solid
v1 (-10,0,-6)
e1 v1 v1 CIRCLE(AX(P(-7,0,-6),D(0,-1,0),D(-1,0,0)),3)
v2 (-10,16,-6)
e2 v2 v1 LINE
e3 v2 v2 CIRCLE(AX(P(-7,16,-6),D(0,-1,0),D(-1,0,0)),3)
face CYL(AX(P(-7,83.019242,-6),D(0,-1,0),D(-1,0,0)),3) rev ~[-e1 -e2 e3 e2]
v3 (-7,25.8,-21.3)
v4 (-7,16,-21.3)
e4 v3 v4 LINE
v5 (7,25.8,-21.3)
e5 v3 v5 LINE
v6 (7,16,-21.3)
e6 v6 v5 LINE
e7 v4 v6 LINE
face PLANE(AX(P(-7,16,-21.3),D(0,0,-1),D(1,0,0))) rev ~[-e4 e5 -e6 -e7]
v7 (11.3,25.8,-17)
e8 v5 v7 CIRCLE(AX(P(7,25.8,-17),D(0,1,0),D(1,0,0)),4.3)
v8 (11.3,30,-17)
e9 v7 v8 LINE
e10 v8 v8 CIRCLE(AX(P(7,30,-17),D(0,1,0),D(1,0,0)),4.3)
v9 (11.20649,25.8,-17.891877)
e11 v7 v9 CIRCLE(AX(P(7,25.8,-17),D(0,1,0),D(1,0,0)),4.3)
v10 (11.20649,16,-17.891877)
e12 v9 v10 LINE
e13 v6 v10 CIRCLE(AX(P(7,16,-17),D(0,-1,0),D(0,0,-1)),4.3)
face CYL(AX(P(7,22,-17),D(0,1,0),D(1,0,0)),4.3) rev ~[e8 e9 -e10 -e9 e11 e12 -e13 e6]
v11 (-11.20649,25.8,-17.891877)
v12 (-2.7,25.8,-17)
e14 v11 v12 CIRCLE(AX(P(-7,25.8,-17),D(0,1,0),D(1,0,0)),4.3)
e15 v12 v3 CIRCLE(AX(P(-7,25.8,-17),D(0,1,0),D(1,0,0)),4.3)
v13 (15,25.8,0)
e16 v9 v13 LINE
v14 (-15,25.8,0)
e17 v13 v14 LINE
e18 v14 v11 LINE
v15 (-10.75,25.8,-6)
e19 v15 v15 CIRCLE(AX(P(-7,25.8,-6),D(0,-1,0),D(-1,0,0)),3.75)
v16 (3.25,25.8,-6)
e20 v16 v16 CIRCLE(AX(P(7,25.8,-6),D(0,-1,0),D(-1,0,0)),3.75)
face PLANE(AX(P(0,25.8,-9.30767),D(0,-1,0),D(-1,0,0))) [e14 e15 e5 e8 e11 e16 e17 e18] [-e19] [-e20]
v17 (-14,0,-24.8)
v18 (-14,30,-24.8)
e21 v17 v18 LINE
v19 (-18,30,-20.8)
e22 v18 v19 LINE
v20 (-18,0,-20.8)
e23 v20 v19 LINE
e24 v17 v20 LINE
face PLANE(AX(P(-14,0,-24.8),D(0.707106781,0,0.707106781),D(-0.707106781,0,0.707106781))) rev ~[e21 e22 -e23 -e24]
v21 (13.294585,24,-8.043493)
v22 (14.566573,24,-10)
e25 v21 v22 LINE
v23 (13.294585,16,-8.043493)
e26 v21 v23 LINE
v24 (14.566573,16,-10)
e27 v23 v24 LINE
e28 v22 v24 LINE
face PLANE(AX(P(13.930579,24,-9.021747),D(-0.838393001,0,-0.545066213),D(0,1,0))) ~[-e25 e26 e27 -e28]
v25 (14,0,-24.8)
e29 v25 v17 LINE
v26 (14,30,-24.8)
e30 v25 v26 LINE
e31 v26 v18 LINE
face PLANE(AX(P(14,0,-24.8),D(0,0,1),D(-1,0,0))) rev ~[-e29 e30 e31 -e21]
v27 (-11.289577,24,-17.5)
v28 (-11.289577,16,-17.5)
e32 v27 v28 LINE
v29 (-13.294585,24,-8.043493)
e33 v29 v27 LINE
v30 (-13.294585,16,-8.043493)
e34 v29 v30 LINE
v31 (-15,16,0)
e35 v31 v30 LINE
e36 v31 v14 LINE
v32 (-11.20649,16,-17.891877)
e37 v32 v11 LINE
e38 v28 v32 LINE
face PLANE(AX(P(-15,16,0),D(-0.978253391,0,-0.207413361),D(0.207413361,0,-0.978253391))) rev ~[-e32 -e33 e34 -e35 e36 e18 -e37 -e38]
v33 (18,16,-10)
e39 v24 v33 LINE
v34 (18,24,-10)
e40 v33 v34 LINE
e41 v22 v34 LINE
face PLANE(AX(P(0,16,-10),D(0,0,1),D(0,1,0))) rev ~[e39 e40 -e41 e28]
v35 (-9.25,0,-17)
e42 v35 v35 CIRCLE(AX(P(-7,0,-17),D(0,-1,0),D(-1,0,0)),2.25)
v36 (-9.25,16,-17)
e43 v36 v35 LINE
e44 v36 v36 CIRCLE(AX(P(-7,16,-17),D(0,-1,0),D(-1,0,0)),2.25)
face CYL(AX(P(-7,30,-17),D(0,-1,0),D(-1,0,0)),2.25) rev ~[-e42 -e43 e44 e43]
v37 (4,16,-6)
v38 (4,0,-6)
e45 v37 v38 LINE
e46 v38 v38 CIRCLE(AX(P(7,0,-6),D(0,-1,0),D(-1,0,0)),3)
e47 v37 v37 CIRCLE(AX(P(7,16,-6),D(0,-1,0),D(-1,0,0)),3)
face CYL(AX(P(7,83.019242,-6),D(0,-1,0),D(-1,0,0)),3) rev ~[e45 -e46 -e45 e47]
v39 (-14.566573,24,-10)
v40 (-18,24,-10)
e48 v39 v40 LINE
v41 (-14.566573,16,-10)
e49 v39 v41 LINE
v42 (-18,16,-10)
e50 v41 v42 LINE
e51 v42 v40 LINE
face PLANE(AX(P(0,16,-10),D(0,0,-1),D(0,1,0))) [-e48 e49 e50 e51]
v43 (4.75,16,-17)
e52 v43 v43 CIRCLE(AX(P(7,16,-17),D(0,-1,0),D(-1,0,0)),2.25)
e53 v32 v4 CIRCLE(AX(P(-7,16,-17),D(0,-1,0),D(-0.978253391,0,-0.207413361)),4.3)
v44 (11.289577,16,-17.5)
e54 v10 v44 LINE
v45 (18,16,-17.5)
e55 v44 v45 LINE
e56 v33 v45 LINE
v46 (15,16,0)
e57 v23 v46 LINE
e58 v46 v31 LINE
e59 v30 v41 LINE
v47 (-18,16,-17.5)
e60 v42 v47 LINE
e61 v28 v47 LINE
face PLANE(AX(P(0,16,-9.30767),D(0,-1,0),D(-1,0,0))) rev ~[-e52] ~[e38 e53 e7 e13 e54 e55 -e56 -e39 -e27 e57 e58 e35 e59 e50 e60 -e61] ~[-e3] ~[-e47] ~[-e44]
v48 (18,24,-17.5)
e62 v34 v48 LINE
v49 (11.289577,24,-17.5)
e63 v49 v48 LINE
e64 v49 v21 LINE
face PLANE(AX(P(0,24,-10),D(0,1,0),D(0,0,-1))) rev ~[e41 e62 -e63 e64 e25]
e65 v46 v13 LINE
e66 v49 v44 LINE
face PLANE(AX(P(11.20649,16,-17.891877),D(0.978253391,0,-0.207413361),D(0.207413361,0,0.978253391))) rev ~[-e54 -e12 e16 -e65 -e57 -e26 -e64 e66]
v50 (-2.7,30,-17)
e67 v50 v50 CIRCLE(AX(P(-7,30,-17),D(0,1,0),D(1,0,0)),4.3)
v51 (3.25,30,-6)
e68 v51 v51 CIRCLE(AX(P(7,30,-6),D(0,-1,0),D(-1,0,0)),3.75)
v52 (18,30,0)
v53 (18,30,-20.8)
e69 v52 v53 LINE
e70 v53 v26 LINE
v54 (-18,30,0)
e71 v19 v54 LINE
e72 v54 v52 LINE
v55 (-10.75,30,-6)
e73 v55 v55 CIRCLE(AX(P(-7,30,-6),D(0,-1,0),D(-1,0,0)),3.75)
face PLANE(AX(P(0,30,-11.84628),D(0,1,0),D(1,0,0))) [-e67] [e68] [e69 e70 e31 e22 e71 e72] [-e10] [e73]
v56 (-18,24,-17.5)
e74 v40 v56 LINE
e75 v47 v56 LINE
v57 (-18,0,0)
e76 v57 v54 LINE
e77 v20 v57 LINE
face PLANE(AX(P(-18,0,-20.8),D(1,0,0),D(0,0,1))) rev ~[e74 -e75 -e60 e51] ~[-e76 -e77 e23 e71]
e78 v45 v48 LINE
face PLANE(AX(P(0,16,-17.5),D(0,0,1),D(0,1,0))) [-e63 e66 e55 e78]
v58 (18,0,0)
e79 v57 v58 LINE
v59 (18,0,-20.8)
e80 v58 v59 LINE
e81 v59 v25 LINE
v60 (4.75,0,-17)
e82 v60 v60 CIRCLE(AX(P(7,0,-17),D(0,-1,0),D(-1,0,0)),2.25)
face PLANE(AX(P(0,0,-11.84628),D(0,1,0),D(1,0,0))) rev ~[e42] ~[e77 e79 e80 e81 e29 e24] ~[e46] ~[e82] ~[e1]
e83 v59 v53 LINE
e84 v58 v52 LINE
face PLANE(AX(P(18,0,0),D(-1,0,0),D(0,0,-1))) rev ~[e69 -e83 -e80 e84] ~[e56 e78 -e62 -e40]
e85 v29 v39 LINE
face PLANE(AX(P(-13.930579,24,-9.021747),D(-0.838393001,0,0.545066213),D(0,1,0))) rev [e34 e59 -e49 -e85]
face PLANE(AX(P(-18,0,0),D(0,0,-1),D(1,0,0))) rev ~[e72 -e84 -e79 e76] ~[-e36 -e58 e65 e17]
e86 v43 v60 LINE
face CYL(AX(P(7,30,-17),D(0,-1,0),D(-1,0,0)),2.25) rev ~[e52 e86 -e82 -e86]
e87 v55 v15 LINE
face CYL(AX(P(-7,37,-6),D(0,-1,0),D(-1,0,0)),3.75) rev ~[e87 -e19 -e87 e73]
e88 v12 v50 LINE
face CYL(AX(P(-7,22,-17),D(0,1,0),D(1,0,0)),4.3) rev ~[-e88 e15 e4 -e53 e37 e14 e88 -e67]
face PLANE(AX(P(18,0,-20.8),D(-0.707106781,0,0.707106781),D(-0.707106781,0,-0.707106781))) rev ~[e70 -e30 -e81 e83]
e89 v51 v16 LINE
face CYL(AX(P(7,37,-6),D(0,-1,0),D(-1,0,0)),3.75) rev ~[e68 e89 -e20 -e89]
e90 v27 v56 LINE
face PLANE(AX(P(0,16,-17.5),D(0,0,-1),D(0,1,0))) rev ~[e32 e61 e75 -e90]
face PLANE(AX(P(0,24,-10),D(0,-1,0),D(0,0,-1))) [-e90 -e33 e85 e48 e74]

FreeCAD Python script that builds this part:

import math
import FreeCAD as App
import Part
import Sketcher

V = App.Vector
Q = App.Units.Quantity


def edges_at(feature, points):
    """Names of the edges that pass closest to the given points."""
    edges = feature.Shape.Edges
    near = lambda p: min(range(len(edges)), key=lambda i: edges[i].distToShape(Part.Vertex(*p))[0])
    return sorted({f"Edge{near(p) + 1}" for p in points})

doc = App.newDocument("Part")
body = doc.addObject("PartDesign::Body", "Body")

# Sketch on XZ plane
sketch1 = body.newObject("Sketcher::SketchObject", "Sketch")
sketch1.AttachmentSupport = (doc.getObject("XZ_Plane"), [""])
sketch1.MapMode = "FlatFace"
sketch1.addGeometry([
    Part.LineSegment(V(-18, 0, 0), V(18, 0, 0)),  # 0
    Part.LineSegment(V(18, 0, 0), V(18, -21, 0)),  # 1
    Part.LineSegment(V(18, -21, 0), V(14, -25, 0)),  # 2
    Part.LineSegment(V(14, -25, 0), V(-14, -25, 0)),  # 3
    Part.LineSegment(V(-14, -25, 0), V(-18, -21, 0)),  # 4
    Part.LineSegment(V(-18, -21, 0), V(-18, 0, 0)),  # 5
], False)
sketch1.addConstraint([
    Sketcher.Constraint("Coincident", 0, 2, 1, 1),
    Sketcher.Constraint("Coincident", 1, 2, 2, 1),
    Sketcher.Constraint("Coincident", 2, 2, 3, 1),
    Sketcher.Constraint("Coincident", 3, 2, 4, 1),
    Sketcher.Constraint("Coincident", 4, 2, 5, 1),
    Sketcher.Constraint("Coincident", 5, 2, 0, 1),
    Sketcher.Constraint("Horizontal", 0),
    Sketcher.Constraint("Vertical", 1),
    Sketcher.Constraint("Horizontal", 3),
    Sketcher.Constraint("Vertical", 5),
    Sketcher.Constraint("Symmetric", 0, 2, 5, 2, -1, 1),
    Sketcher.Constraint("Perpendicular", 2, 4),
    Sketcher.Constraint("Horizontal", 1, 2, 4, 2),
    Sketcher.Constraint("Equal", 2, 4),
    Sketcher.Constraint("DistanceX", 0, 1, 0, 2, Q("36 mm")),
    Sketcher.Constraint("DistanceX", 3, 2, 3, 1, Q("28 mm")),
    Sketcher.Constraint("DistanceY", 1, 2, 1, 1, Q("20.8 mm")),
])
pad1 = body.newObject("PartDesign::Pad", "Pad")
pad1.Profile = sketch1
pad1.Length = 30
pad1.Reversed = True

# Sketch on XZ plane
sketch2 = body.newObject("Sketcher::SketchObject", "Sketch001")
sketch2.AttachmentSupport = (doc.getObject("XZ_Plane"), [""])
sketch2.MapMode = "FlatFace"
sketch2.AttachmentOffset = App.Placement(V(0, 0, -16), App.Rotation())
sketch2.addGeometry([
    Part.LineSegment(V(7, -21.3, 0), V(-7, -21.3, 0)),  # 0
    Part.ArcOfCircle(Part.Circle(V(-7, -17, 0), V(0, 0, 1), 4.3), math.radians(-168), math.radians(-90)),  # 1
    Part.LineSegment(V(-11.2, -17.9, 0), V(-15, 0, 0)),  # 2
    Part.LineSegment(V(-15, 0, 0), V(15, 0, 0)),  # 3
    Part.LineSegment(V(15, 0, 0), V(11.2, -17.9, 0)),  # 4
    Part.ArcOfCircle(Part.Circle(V(7, -17, 0), V(0, 0, 1), 4.3), math.radians(-90), math.radians(-12)),  # 5
], False)
sketch2.addConstraint([
    Sketcher.Constraint("Tangent", 0, 2, 1, 2),
    Sketcher.Constraint("Tangent", 1, 1, 2, 1),
    Sketcher.Constraint("Coincident", 2, 2, 3, 1),
    Sketcher.Constraint("Coincident", 3, 2, 4, 1),
    Sketcher.Constraint("Tangent", 4, 2, 5, 2),
    Sketcher.Constraint("Tangent", 5, 1, 0, 1),
    Sketcher.Constraint("Horizontal", 0),
    Sketcher.Constraint("Horizontal", 3),
    Sketcher.Constraint("Equal", 1, 5),
    Sketcher.Constraint("Symmetric", 2, 2, 3, 2, -1, 1),
    Sketcher.Constraint("Horizontal", 1, 1, 4, 2),
    Sketcher.Constraint("Radius", 1, Q("4.3 mm")),
    Sketcher.Constraint("DistanceX", 0, 2, 0, 1, Q("14 mm")),
    Sketcher.Constraint("DistanceX", 3, 1, 3, 2, Q("30 mm")),
    Sketcher.Constraint("DistanceY", 1, 3, -1, 1, Q("17 mm")),
])
pocket1 = body.newObject("PartDesign::Pocket", "Pocket")
pocket1.Profile = sketch2
pocket1.Length = 9.8

# Sketch on XZ plane
sketch3 = body.newObject("Sketcher::SketchObject", "Sketch002")
sketch3.AttachmentSupport = (doc.getObject("XZ_Plane"), [""])
sketch3.MapMode = "FlatFace"
sketch3.AttachmentOffset = App.Placement(V(0, 0, -30), App.Rotation())
sketch3.addGeometry([
    Part.Circle(V(-7, -17, 0), V(0, 0, 1), 2.2),
    Part.Circle(V(7, -17, 0), V(0, 0, 1), 2.2),
], False)
sketch3.addConstraint([
    Sketcher.Constraint("Equal", 0, 1),
    Sketcher.Constraint("Symmetric", 0, 3, 1, 3, -2),
    Sketcher.Constraint("Diameter", 0, Q("4.5 mm")),
    Sketcher.Constraint("DistanceX", 0, 3, -1, 1, Q("7 mm")),
    Sketcher.Constraint("DistanceY", 0, 3, -1, 1, Q("17 mm")),
])
doc.recompute()
hole = body.newObject("PartDesign::Hole", "Hole")
hole.Profile = sketch3
hole.ThreadType = "None"
hole.Diameter = 4.5
hole.DepthType = "ThroughAll"
hole.HoleCutType = "Counterbore"
hole.HoleCutDiameter = 8.6
hole.HoleCutDepth = 8
hole.Reversed = True

# Sketch on XZ plane
sketch4 = body.newObject("Sketcher::SketchObject", "Sketch003")
sketch4.AttachmentSupport = (doc.getObject("XZ_Plane"), [""])
sketch4.MapMode = "FlatFace"
sketch4.AttachmentOffset = App.Placement(V(0, 0, -30), App.Rotation())
sketch4.addGeometry([
    Part.Circle(V(-7, -6, 0), V(0, 0, 1), 3),
    Part.Circle(V(7, -6, 0), V(0, 0, 1), 3),
], False)
sketch4.addConstraint([
    Sketcher.Constraint("Equal", 0, 1),
    Sketcher.Constraint("Symmetric", 0, 3, 1, 3, -2),
    Sketcher.Constraint("Diameter", 0, Q("6 mm")),
    Sketcher.Constraint("DistanceX", 0, 3, -1, 1, Q("7 mm")),
    Sketcher.Constraint("DistanceY", 0, 3, -1, 1, Q("6 mm")),
])
doc.recompute()
hole2 = body.newObject("PartDesign::Hole", "Hole001")
hole2.Profile = sketch4
hole2.ThreadType = "None"
hole2.Diameter = 6
hole2.DepthType = "ThroughAll"
hole2.Reversed = True

# Sketch on YZ plane
sketch5 = body.newObject("Sketcher::SketchObject", "Sketch004")
sketch5.AttachmentSupport = (doc.getObject("YZ_Plane"), [""])
sketch5.MapMode = "FlatFace"
sketch5.addGeometry([
    Part.LineSegment(V(24, -10, 0), V(16, -10, 0)),
    Part.LineSegment(V(16, -10, 0), V(16, -18, 0)),
    Part.LineSegment(V(16, -18, 0), V(24, -18, 0)),
    Part.LineSegment(V(24, -18, 0), V(24, -10, 0)),
], False)
sketch5.addConstraint([
    Sketcher.Constraint("Coincident", 0, 2, 1, 1),
    Sketcher.Constraint("Coincident", 1, 2, 2, 1),
    Sketcher.Constraint("Coincident", 2, 2, 3, 1),
    Sketcher.Constraint("Coincident", 3, 2, 0, 1),
    Sketcher.Constraint("Horizontal", 0),
    Sketcher.Constraint("Vertical", 1),
    Sketcher.Constraint("Horizontal", 2),
    Sketcher.Constraint("Vertical", 3),
    Sketcher.Constraint("DistanceX", 0, 2, 0, 1, Q("8 mm")),
    Sketcher.Constraint("DistanceY", 1, 2, 1, 1, Q("7.5 mm")),
    Sketcher.Constraint("DistanceX", -1, 1, 0, 2, Q("16 mm")),
    Sketcher.Constraint("DistanceY", 0, 2, -1, 1, Q("10 mm")),
])
pocket2 = body.newObject("PartDesign::Pocket", "Pocket001")
pocket2.Profile = sketch5
pocket2.Type = "ThroughAll"
pocket2.Midplane = True
doc.recompute()

chamfer = body.newObject("PartDesign::Chamfer", "Chamfer")
chamfer.Base = (pocket2, edges_at(pocket2, [(-12.88, 20, -10)]))
chamfer.ChamferType = "Two distances"
chamfer.Size = 2
chamfer.Size2 = 1.686815
doc.recompute()

chamfer2 = body.newObject("PartDesign::Chamfer", "Chamfer001")
chamfer2.Base = (chamfer, edges_at(chamfer, [(12.88, 20, -10)]))
chamfer2.ChamferType = "Two distances"
chamfer2.Size = 2
chamfer2.Size2 = 1.686815

# Sketch on XZ plane
sketch6 = body.newObject("Sketcher::SketchObject", "Sketch005")
sketch6.AttachmentSupport = (doc.getObject("XZ_Plane"), [""])
sketch6.MapMode = "FlatFace"
sketch6.AttachmentOffset = App.Placement(V(0, 0, -30), App.Rotation())
sketch6.addGeometry([
    Part.Circle(V(-7, -6, 0), V(0, 0, 1), 3.8),
    Part.Circle(V(7, -6, 0), V(0, 0, 1), 3.8),
], False)
sketch6.addConstraint([
    Sketcher.Constraint("Equal", 0, 1),
    Sketcher.Constraint("Symmetric", 0, 3, 1, 3, -2),
    Sketcher.Constraint("Diameter", 0, Q("7.5 mm")),
    Sketcher.Constraint("DistanceX", 0, 3, -1, 1, Q("7 mm")),
    Sketcher.Constraint("DistanceY", 0, 3, -1, 1, Q("6 mm")),
])
doc.recompute()
hole3 = body.newObject("PartDesign::Hole", "Hole002")
hole3.Profile = sketch6
hole3.ThreadType = "None"
hole3.Diameter = 7.5
hole3.DepthType = "Dimension"
hole3.Depth = 7
hole3.DrillPoint = "Angled"
hole3.DrillPointAngle = 118
hole3.Reversed = True

doc.recompute()
